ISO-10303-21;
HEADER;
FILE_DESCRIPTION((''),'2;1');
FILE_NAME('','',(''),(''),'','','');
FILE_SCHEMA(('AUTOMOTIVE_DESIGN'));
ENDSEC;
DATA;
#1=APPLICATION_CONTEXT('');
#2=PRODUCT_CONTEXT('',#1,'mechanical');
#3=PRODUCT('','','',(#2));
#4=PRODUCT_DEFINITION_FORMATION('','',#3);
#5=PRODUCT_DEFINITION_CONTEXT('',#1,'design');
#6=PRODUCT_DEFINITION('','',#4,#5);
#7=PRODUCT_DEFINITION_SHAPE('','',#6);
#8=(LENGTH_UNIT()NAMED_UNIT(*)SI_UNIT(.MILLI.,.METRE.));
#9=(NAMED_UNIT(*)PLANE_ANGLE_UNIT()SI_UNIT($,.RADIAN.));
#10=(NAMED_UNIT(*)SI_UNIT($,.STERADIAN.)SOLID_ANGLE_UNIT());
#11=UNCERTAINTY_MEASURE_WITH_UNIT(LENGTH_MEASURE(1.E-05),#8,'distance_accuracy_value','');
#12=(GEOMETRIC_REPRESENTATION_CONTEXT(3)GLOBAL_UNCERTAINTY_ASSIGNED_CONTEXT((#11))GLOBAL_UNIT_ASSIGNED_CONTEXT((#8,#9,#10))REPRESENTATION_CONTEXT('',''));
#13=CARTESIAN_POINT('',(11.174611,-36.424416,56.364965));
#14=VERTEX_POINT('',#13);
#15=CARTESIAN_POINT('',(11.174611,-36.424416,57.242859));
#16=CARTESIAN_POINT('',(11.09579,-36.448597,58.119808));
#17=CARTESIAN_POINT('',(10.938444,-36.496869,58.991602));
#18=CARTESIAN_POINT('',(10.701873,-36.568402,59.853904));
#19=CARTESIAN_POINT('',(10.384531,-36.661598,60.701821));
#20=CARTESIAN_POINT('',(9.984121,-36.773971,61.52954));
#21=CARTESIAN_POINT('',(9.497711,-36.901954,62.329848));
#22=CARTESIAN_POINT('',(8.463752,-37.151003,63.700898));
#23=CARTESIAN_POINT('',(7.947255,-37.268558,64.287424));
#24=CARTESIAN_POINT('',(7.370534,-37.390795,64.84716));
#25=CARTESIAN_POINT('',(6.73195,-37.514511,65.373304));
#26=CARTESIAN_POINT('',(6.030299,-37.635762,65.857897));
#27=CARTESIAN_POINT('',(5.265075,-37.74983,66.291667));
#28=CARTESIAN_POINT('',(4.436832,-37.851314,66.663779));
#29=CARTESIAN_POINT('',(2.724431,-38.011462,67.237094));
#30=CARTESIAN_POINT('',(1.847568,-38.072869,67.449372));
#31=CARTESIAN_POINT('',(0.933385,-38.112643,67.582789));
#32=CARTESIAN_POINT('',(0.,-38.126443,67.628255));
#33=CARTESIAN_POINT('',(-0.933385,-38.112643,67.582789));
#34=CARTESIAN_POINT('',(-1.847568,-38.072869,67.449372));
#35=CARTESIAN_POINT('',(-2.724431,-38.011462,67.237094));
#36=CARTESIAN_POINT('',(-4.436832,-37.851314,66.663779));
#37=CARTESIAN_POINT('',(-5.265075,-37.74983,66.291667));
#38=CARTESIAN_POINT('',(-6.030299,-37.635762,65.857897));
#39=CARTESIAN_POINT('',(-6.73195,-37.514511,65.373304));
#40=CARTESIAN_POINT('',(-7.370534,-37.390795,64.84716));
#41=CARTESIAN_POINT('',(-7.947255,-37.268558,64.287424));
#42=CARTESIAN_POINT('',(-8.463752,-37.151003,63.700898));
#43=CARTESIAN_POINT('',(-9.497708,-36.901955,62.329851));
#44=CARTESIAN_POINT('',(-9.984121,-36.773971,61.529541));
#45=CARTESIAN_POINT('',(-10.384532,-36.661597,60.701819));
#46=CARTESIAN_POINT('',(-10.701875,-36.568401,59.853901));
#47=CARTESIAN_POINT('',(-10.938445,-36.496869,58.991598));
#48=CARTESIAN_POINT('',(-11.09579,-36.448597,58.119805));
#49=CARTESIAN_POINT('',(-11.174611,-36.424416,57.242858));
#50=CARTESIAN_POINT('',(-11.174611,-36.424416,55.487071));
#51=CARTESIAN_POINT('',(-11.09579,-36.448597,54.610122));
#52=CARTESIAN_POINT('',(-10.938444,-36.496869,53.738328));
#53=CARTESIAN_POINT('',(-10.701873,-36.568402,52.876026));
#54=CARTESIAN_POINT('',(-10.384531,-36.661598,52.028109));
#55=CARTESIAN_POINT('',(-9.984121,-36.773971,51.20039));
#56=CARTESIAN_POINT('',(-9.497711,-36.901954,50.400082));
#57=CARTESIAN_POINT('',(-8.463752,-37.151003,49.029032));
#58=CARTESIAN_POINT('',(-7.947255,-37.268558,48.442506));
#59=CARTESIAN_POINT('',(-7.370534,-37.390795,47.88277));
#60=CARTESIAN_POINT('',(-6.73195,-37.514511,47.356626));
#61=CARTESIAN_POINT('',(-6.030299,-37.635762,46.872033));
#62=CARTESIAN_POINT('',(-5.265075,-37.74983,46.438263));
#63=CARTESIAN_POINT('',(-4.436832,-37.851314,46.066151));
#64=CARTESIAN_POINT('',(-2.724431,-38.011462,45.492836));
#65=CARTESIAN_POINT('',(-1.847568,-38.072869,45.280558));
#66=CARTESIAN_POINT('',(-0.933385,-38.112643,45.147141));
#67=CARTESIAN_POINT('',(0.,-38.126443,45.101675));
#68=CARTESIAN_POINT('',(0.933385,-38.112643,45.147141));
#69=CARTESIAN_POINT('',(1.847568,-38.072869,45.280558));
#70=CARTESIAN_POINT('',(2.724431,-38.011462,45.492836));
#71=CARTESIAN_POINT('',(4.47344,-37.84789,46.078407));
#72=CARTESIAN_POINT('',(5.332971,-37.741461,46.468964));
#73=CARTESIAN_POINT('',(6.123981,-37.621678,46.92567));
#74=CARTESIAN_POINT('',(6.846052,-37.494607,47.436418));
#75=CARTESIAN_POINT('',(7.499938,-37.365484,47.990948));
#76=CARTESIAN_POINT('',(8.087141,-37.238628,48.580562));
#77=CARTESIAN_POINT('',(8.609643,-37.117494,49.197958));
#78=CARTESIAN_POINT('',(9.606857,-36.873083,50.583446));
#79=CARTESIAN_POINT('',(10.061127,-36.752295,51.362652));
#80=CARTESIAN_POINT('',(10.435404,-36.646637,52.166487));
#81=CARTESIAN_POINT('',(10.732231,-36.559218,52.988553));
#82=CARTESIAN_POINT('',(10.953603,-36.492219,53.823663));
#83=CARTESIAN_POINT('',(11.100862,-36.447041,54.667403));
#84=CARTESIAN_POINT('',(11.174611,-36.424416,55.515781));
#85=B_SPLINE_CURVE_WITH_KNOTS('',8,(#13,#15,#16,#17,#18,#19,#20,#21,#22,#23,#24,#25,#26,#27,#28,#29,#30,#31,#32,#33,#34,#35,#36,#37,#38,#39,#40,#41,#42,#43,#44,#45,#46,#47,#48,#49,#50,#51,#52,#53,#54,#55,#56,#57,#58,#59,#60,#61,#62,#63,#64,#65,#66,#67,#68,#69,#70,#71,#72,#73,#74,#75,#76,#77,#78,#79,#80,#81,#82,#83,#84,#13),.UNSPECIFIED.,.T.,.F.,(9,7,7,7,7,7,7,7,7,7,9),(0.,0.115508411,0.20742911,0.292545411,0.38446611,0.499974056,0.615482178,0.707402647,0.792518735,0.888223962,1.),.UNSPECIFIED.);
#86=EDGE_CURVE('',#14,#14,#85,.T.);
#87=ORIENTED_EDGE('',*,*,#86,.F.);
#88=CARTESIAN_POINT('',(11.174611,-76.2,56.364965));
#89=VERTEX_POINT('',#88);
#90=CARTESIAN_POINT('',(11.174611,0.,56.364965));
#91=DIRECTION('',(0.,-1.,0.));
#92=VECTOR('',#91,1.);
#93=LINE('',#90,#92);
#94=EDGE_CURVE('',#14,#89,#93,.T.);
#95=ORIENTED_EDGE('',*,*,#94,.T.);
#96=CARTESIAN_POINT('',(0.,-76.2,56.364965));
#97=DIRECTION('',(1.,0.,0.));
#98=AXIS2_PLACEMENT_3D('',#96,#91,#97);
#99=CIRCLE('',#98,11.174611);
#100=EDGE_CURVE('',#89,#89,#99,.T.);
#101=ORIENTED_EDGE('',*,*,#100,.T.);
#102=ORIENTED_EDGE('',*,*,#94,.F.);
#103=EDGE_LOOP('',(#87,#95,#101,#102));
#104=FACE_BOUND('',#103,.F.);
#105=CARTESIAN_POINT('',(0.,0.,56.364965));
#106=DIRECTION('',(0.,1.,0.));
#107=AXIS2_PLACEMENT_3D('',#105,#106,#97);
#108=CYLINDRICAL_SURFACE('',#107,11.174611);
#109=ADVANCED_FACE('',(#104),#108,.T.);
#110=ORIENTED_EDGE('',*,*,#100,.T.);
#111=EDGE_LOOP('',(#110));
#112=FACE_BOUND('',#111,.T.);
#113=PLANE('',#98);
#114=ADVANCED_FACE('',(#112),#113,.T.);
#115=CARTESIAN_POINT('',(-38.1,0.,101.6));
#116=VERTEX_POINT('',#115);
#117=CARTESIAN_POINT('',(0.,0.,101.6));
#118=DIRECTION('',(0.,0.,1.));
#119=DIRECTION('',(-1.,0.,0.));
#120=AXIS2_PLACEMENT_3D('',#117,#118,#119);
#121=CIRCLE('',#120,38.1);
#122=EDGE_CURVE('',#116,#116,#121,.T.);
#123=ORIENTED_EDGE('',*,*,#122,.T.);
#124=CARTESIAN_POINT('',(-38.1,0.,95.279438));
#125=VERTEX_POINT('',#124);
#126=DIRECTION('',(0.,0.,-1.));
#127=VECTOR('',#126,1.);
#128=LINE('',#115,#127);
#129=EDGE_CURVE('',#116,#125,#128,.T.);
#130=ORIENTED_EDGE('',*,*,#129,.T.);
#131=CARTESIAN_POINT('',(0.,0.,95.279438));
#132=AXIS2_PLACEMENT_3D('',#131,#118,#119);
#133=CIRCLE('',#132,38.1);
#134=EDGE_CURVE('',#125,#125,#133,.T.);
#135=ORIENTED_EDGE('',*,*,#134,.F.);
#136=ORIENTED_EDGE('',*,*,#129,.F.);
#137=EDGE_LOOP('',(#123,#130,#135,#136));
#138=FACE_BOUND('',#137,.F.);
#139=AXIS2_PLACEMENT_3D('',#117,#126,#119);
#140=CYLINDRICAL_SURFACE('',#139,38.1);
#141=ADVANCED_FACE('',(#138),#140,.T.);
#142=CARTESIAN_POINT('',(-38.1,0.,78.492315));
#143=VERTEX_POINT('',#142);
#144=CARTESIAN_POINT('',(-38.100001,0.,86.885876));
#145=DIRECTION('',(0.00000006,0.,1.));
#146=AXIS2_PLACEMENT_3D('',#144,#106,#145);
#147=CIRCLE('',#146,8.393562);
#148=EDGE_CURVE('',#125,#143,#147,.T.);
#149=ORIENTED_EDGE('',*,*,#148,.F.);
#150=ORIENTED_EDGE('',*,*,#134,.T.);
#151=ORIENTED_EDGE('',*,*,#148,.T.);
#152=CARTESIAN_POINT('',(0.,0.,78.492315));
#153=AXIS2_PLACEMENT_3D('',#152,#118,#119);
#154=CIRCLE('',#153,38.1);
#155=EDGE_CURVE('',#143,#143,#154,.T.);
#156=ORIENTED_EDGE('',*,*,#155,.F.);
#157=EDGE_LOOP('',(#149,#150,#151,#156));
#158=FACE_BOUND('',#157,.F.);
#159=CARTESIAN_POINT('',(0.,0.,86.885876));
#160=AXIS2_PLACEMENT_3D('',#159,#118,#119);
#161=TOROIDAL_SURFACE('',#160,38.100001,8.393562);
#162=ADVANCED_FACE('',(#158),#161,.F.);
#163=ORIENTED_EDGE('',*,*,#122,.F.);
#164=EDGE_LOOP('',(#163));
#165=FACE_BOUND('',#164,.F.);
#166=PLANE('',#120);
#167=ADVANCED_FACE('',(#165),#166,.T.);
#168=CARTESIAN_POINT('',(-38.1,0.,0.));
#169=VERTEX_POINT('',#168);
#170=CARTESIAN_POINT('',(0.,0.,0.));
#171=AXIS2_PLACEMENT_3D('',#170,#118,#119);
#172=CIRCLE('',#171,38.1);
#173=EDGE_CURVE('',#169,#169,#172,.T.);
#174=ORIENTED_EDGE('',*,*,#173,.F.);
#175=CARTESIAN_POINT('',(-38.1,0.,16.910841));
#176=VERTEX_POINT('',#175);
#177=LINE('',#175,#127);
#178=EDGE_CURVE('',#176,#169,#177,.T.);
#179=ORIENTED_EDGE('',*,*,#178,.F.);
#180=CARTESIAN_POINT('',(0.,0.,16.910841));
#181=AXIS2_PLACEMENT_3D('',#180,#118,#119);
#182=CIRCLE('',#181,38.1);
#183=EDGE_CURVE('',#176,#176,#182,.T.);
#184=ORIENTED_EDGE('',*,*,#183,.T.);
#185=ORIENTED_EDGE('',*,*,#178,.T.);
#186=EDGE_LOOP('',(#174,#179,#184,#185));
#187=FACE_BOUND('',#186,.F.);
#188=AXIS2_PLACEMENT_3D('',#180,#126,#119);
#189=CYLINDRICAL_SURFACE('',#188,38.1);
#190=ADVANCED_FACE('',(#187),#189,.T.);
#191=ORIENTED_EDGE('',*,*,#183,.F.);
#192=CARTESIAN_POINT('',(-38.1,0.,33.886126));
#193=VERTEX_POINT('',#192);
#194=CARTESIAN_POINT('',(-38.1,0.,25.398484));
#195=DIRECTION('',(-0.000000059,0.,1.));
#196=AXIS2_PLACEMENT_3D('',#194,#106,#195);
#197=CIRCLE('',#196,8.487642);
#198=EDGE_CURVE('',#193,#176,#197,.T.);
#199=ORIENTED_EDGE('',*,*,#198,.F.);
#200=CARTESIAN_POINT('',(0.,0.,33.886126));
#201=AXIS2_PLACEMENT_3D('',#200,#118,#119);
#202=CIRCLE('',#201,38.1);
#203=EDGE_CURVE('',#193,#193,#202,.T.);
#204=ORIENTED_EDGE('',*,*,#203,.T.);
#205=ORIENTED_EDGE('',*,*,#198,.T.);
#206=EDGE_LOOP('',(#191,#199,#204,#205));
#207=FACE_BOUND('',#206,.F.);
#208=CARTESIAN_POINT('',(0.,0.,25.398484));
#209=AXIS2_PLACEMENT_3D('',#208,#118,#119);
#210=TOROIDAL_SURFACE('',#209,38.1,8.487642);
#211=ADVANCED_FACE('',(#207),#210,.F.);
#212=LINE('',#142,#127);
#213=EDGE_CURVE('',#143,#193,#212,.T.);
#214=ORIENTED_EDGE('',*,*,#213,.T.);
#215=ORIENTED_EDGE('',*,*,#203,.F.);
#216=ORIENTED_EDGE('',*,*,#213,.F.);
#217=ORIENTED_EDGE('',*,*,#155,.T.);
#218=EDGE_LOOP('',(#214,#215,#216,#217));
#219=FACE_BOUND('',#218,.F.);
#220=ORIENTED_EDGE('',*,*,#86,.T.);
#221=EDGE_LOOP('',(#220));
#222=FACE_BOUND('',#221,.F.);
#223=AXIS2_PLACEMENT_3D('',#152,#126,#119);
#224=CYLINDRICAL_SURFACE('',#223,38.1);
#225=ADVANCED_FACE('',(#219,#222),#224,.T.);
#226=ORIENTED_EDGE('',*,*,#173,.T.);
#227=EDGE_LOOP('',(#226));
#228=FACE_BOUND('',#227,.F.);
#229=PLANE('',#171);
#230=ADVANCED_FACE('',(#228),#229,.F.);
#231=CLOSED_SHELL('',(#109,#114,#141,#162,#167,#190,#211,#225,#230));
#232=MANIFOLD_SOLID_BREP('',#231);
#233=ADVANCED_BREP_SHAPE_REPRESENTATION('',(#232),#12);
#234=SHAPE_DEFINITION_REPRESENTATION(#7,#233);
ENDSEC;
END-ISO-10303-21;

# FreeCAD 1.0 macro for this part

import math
import FreeCAD as App
import Part
import Sketcher
from FreeCAD import Vector
Q = App.Units.Quantity

doc = App.newDocument("Part")
body = doc.addObject("PartDesign::Body", "Body")

# Sketch on XZ plane
sketch1 = body.newObject("Sketcher::SketchObject", "Sketch")
sketch1.AttachmentSupport = (doc.getObject("XZ_Plane"), [""])
sketch1.MapMode = "FlatFace"
sketch1.addGeometry(Part.LineSegment(Vector(-38.1, 0, 0), Vector(0, 0, 0)), False)
sketch1.addGeometry(Part.LineSegment(Vector(0, 0, 0), Vector(0, 101.6, 0)), False)
sketch1.addGeometry(Part.LineSegment(Vector(0, 101.6, 0), Vector(-38.1, 101.6, 0)), False)
sketch1.addGeometry(Part.LineSegment(Vector(-38.1, 101.6, 0), Vector(-38.1, 95.279438, 0)), False)
sketch1.addGeometry(Part.ArcOfCircle(Part.Circle(Vector(-38.100001, 86.885876, 0), Vector(0, 0, 1), 8.393562), math.radians(-89.999997), math.radians(89.999997)), False)
sketch1.addGeometry(Part.LineSegment(Vector(-38.1, 78.492315, 0), Vector(-38.1, 33.886126, 0)), False)
sketch1.addGeometry(Part.ArcOfCircle(Part.Circle(Vector(-38.1, 25.398484, 0), Vector(0, 0, 1), 8.487642), math.radians(-90.000003), math.radians(90.000003)), False)
sketch1.addGeometry(Part.LineSegment(Vector(-38.1, 16.910841, 0), Vector(-38.1, 0, 0)), False)
sketch1.addConstraint(Sketcher.Constraint("Coincident", 0, 2, 1, 1))
sketch1.addConstraint(Sketcher.Constraint("Coincident", 1, 2, 2, 1))
sketch1.addConstraint(Sketcher.Constraint("Coincident", 2, 2, 3, 1))
sketch1.addConstraint(Sketcher.Constraint("Coincident", 3, 2, 4, 2))
sketch1.addConstraint(Sketcher.Constraint("Coincident", 4, 1, 5, 1))
sketch1.addConstraint(Sketcher.Constraint("Coincident", 5, 2, 6, 2))
sketch1.addConstraint(Sketcher.Constraint("Coincident", 6, 1, 7, 1))
sketch1.addConstraint(Sketcher.Constraint("Coincident", 7, 2, 0, 1))
sketch1.addConstraint(Sketcher.Constraint("Horizontal", 0))
sketch1.addConstraint(Sketcher.Constraint("Vertical", 1))
sketch1.addConstraint(Sketcher.Constraint("Horizontal", 2))
sketch1.addConstraint(Sketcher.Constraint("Vertical", 3))
sketch1.addConstraint(Sketcher.Constraint("Vertical", 5))
sketch1.addConstraint(Sketcher.Constraint("Vertical", 7))
sketch1.addConstraint(Sketcher.Constraint("Coincident", 0, 2, -1, 1))
sketch1.addConstraint(Sketcher.Constraint("Vertical", 4, 3, 6, 3))
sketch1.addConstraint(Sketcher.Constraint("Vertical", 6, 3, 2, 2))
sketch1.addConstraint(Sketcher.Constraint("Vertical", 3, 2, 4, 1))
sketch1.addConstraint(Sketcher.Constraint("Vertical", 5, 2, 6, 1))
sketch1.addConstraint(Sketcher.Constraint("DistanceY", 1, 1, 1, 2, Q("4 in")))
sketch1.addConstraint(Sketcher.Constraint("DistanceX", 0, 1, 0, 2, Q("1.5 in")))
sketch1.addConstraint(Sketcher.Constraint("Radius", 4, Q("8.393562 mm")))
sketch1.addConstraint(Sketcher.Constraint("Radius", 6, Q("8.487642 mm")))
sketch1.addConstraint(Sketcher.Constraint("DistanceY", 3, 2, 3, 1, Q("6.320562 mm")))
sketch1.addConstraint(Sketcher.Constraint("DistanceY", 5, 2, 5, 1, Q("44.606189 mm")))
revolution = body.newObject("PartDesign::Revolution", "Revolution")
revolution.Profile = sketch1
revolution.ReferenceAxis = (sketch1, ["V_Axis"])
revolution.Angle = 360

# Sketch on XZ plane
sketch2 = body.newObject("Sketcher::SketchObject", "Sketch001")
sketch2.AttachmentSupport = (doc.getObject("XZ_Plane"), [""])
sketch2.MapMode = "FlatFace"
sketch2.addGeometry(Part.Circle(Vector(0, 56.364965, 0), Vector(0, 0, 1), 11.174611), False)
sketch2.addConstraint(Sketcher.Constraint("PointOnObject", 0, 3, -2))
sketch2.addConstraint(Sketcher.Constraint("Diameter", 0, Q("22.349222 mm")))
sketch2.addConstraint(Sketcher.Constraint("DistanceY", -1, 1, 0, 3, Q("56.364965 mm")))
pad1 = body.newObject("PartDesign::Pad", "Pad")
pad1.Profile = sketch2
pad1.Length = Q("3 in")

doc.recompute()
